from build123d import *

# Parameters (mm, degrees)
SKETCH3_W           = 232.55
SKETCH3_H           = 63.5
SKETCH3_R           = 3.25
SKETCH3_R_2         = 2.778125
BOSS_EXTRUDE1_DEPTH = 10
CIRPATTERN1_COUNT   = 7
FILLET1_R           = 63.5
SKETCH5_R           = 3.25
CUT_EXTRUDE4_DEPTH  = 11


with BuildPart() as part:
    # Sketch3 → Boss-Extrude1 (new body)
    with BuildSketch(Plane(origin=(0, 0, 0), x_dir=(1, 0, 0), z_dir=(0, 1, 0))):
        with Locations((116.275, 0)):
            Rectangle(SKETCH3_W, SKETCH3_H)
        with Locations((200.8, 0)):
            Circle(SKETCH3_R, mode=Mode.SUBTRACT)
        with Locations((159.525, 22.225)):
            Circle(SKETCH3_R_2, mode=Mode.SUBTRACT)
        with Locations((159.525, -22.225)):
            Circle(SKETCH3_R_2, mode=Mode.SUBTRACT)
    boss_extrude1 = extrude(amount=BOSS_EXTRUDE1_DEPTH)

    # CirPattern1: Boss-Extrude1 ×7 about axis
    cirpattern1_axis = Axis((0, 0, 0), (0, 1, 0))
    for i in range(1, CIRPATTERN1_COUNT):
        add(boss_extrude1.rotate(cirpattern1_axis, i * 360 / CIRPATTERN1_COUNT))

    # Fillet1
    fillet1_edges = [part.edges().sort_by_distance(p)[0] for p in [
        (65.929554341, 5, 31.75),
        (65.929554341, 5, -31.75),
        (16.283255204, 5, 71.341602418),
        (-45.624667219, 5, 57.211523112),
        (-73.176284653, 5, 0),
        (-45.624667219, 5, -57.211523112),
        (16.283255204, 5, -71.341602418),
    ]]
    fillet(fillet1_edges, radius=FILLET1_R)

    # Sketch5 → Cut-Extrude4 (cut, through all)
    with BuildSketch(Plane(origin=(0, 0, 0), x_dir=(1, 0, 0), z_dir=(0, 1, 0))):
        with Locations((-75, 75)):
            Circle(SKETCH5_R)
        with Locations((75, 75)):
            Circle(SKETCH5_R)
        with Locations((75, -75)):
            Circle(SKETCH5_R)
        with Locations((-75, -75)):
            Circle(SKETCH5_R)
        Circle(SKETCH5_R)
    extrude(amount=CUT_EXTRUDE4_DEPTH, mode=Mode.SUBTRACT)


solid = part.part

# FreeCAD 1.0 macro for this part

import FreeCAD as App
import Part
import Sketcher
from FreeCAD import Vector
Q = App.Units.Quantity


def edges_at(feature, points):
    """Names of the edges that pass closest to the given points."""
    edges = feature.Shape.Edges
    near = lambda p: min(range(len(edges)), key=lambda i: edges[i].distToShape(Part.Vertex(*p))[0])
    return sorted({f"Edge{near(p) + 1}" for p in points})


def add_polygon(sketch, points):
    """Adds a closed chain of lines whose ends are joined by coincident constraints."""
    first, n = sketch.GeometryCount, len(points)
    for a, b in zip(points, points[1:] + points[:1]):
        sketch.addGeometry(Part.LineSegment(App.Vector(*a, 0), App.Vector(*b, 0)), False)
    for i in range(n):
        sketch.addConstraint(Sketcher.Constraint("Coincident", first + i, 2, first + (i + 1) % n, 1))

doc = App.newDocument("Part")
body = doc.addObject("PartDesign::Body", "Body")

# Sketch on XZ plane
sketch1 = body.newObject("Sketcher::SketchObject", "Sketch")
sketch1.AttachmentSupport = (doc.getObject("XZ_Plane"), [""])
sketch1.MapMode = "FlatFace"
add_polygon(sketch1, [(0, -31.8), (0, 31.8), (232.6, 31.8), (232.6, -31.8)])  # lines 0-3
sketch1.addGeometry(Part.Circle(Vector(159.5, 22.2, 0), Vector(0, 0, 1), 2.8), False)  # 4
sketch1.addGeometry(Part.Circle(Vector(159.5, -22.2, 0), Vector(0, 0, 1), 2.8), False)  # 5
sketch1.addGeometry(Part.Circle(Vector(200.8, 0, 0), Vector(0, 0, 1), 3.2), False)  # 6
sketch1.addConstraint(Sketcher.Constraint("Vertical", 0))
sketch1.addConstraint(Sketcher.Constraint("Horizontal", 1))
sketch1.addConstraint(Sketcher.Constraint("Vertical", 2))
sketch1.addConstraint(Sketcher.Constraint("Horizontal", 3))
sketch1.addConstraint(Sketcher.Constraint("Equal", 4, 5))
sketch1.addConstraint(Sketcher.Constraint("Symmetric", 0, 2, 3, 2, -1, 1))
sketch1.addConstraint(Sketcher.Constraint("Symmetric", 4, 3, 5, 3, -1))
sketch1.addConstraint(Sketcher.Constraint("PointOnObject", 6, 3, -1))
sketch1.addConstraint(Sketcher.Constraint("Diameter", 6, Q("6.5 mm")))
sketch1.addConstraint(Sketcher.Constraint("DistanceY", 0, 1, 0, 2, Q("63.5 mm")))
sketch1.addConstraint(Sketcher.Constraint("DistanceX", 1, 1, 1, 2, Q("232.55 mm")))
sketch1.addConstraint(Sketcher.Constraint("DistanceX", -1, 1, 6, 3, Q("200.8 mm")))
sketch1.addConstraint(Sketcher.Constraint("Diameter", 4, Q("5.55625 mm")))
sketch1.addConstraint(Sketcher.Constraint("DistanceY", 5, 3, 4, 3, Q("44.45 mm")))
sketch1.addConstraint(Sketcher.Constraint("DistanceX", -1, 1, 4, 3, Q("159.525 mm")))
pad1 = body.newObject("PartDesign::Pad", "Pad")
pad1.Profile = sketch1
pad1.Length = 10
pad1.Reversed = True
doc.recompute()

polarpattern = body.newObject("PartDesign::PolarPattern", "PolarPattern")
polarpattern.Originals = [pad1]
polarpattern.Axis = (doc.getObject("Y_Axis"), [""])
polarpattern.Angle = 360
polarpattern.Occurrences = 7
body.Tip = polarpattern
doc.recompute()

fillet = body.newObject("PartDesign::Fillet", "Fillet")
fillet.Base = (polarpattern, edges_at(polarpattern, [
    (65.93, 5, 31.75),
    (65.93, 5, -31.75),
    (16.283, 5, 71.342),
    (-45.625, 5, 57.212),
    (-73.176, 5, 0),
    (-45.625, 5, -57.212),
    (16.283, 5, -71.342),
]))
fillet.Radius = 63.5

# Sketch on XZ plane
sketch2 = body.newObject("Sketcher::SketchObject", "Sketch001")
sketch2.AttachmentSupport = (doc.getObject("XZ_Plane"), [""])
sketch2.MapMode = "FlatFace"
sketch2.addGeometry(Part.Circle(Vector(-75, -75, 0), Vector(0, 0, 1), 3.2), False)
sketch2.addGeometry(Part.Circle(Vector(75, -75, 0), Vector(0, 0, 1), 3.2), False)
sketch2.addGeometry(Part.Circle(Vector(75, 75, 0), Vector(0, 0, 1), 3.2), False)
sketch2.addGeometry(Part.Circle(Vector(-75, 75, 0), Vector(0, 0, 1), 3.2), False)
sketch2.addGeometry(Part.Circle(Vector(0, 0, 0), Vector(0, 0, 1), 3.2), False)
sketch2.addConstraint(Sketcher.Constraint("Coincident", 4, 3, -1, 1))
sketch2.addConstraint(Sketcher.Constraint("Equal", 0, 1))
sketch2.addConstraint(Sketcher.Constraint("Equal", 1, 2))
sketch2.addConstraint(Sketcher.Constraint("Equal", 2, 3))
sketch2.addConstraint(Sketcher.Constraint("Equal", 3, 4))
sketch2.addConstraint(Sketcher.Constraint("Symmetric", 0, 3, 2, 3, -1, 1))
sketch2.addConstraint(Sketcher.Constraint("Symmetric", 1, 3, 3, 3, -1, 1))
sketch2.addConstraint(Sketcher.Constraint("Symmetric", 0, 3, 1, 3, -2))
sketch2.addConstraint(Sketcher.Constraint("Diameter", 0, Q("6.5 mm")))
sketch2.addConstraint(Sketcher.Constraint("DistanceX", 0, 3, -1, 1, Q("75 mm")))
sketch2.addConstraint(Sketcher.Constraint("DistanceY", 0, 3, -1, 1, Q("75 mm")))
pocket1 = body.newObject("PartDesign::Pocket", "Pocket")
pocket1.Profile = sketch2
pocket1.Type = "ThroughAll"

doc.recompute()
